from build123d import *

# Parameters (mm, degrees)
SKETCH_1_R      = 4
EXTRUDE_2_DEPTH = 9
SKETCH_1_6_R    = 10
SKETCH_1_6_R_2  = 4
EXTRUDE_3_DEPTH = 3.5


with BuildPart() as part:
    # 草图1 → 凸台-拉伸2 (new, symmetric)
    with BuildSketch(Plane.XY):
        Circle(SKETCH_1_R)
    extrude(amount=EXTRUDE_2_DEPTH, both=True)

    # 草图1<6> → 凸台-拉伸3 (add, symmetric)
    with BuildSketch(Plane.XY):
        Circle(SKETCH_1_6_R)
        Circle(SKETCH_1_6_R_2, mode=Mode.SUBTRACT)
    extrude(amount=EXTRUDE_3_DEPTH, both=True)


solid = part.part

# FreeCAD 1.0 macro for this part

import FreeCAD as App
import Part
import Sketcher
from FreeCAD import Vector

doc = App.newDocument("Part")
body = doc.addObject("PartDesign::Body", "Body")

# Sketch on XY plane
sketch1 = doc.addObject("Sketcher::SketchObject", "Sketch")
body.addObject(sketch1)
sketch1.AttachmentSupport = (doc.XY_Plane, [""])
sketch1.MapMode = "FlatFace"
sketch1.addGeometry(Part.Circle(Vector(0, 0, 0), Vector(0, 0, 1), 4), False)
sketch1.addConstraint(Sketcher.Constraint("Coincident", 0, 3, -1, 1))
sketch1.addConstraint(Sketcher.Constraint("Diameter", 0, 8.0))
pad1 = doc.addObject("PartDesign::Pad", "Pad")
body.addObject(pad1)
pad1.Profile = sketch1
pad1.Length = 18
pad1.Midplane = True

# Sketch on XY plane
sketch2 = doc.addObject("Sketcher::SketchObject", "Sketch001")
body.addObject(sketch2)
sketch2.AttachmentSupport = (doc.XY_Plane, [""])
sketch2.MapMode = "FlatFace"
sketch2.addGeometry(Part.Circle(Vector(0, 0, 0), Vector(0, 0, 1), 10), False)
sketch2.addGeometry(Part.Circle(Vector(0, 0, 0), Vector(0, 0, 1), 4), False)
sketch2.addConstraint(Sketcher.Constraint("Coincident", 0, 3, -1, 1))
sketch2.addConstraint(Sketcher.Constraint("Coincident", 1, 3, -1, 1))
sketch2.addConstraint(Sketcher.Constraint("Diameter", 0, 20.0))
sketch2.addConstraint(Sketcher.Constraint("Diameter", 1, 8.0))
pad2 = doc.addObject("PartDesign::Pad", "Pad001")
body.addObject(pad2)
pad2.Profile = sketch2
pad2.Length = 7
pad2.Midplane = True

doc.recompute()
